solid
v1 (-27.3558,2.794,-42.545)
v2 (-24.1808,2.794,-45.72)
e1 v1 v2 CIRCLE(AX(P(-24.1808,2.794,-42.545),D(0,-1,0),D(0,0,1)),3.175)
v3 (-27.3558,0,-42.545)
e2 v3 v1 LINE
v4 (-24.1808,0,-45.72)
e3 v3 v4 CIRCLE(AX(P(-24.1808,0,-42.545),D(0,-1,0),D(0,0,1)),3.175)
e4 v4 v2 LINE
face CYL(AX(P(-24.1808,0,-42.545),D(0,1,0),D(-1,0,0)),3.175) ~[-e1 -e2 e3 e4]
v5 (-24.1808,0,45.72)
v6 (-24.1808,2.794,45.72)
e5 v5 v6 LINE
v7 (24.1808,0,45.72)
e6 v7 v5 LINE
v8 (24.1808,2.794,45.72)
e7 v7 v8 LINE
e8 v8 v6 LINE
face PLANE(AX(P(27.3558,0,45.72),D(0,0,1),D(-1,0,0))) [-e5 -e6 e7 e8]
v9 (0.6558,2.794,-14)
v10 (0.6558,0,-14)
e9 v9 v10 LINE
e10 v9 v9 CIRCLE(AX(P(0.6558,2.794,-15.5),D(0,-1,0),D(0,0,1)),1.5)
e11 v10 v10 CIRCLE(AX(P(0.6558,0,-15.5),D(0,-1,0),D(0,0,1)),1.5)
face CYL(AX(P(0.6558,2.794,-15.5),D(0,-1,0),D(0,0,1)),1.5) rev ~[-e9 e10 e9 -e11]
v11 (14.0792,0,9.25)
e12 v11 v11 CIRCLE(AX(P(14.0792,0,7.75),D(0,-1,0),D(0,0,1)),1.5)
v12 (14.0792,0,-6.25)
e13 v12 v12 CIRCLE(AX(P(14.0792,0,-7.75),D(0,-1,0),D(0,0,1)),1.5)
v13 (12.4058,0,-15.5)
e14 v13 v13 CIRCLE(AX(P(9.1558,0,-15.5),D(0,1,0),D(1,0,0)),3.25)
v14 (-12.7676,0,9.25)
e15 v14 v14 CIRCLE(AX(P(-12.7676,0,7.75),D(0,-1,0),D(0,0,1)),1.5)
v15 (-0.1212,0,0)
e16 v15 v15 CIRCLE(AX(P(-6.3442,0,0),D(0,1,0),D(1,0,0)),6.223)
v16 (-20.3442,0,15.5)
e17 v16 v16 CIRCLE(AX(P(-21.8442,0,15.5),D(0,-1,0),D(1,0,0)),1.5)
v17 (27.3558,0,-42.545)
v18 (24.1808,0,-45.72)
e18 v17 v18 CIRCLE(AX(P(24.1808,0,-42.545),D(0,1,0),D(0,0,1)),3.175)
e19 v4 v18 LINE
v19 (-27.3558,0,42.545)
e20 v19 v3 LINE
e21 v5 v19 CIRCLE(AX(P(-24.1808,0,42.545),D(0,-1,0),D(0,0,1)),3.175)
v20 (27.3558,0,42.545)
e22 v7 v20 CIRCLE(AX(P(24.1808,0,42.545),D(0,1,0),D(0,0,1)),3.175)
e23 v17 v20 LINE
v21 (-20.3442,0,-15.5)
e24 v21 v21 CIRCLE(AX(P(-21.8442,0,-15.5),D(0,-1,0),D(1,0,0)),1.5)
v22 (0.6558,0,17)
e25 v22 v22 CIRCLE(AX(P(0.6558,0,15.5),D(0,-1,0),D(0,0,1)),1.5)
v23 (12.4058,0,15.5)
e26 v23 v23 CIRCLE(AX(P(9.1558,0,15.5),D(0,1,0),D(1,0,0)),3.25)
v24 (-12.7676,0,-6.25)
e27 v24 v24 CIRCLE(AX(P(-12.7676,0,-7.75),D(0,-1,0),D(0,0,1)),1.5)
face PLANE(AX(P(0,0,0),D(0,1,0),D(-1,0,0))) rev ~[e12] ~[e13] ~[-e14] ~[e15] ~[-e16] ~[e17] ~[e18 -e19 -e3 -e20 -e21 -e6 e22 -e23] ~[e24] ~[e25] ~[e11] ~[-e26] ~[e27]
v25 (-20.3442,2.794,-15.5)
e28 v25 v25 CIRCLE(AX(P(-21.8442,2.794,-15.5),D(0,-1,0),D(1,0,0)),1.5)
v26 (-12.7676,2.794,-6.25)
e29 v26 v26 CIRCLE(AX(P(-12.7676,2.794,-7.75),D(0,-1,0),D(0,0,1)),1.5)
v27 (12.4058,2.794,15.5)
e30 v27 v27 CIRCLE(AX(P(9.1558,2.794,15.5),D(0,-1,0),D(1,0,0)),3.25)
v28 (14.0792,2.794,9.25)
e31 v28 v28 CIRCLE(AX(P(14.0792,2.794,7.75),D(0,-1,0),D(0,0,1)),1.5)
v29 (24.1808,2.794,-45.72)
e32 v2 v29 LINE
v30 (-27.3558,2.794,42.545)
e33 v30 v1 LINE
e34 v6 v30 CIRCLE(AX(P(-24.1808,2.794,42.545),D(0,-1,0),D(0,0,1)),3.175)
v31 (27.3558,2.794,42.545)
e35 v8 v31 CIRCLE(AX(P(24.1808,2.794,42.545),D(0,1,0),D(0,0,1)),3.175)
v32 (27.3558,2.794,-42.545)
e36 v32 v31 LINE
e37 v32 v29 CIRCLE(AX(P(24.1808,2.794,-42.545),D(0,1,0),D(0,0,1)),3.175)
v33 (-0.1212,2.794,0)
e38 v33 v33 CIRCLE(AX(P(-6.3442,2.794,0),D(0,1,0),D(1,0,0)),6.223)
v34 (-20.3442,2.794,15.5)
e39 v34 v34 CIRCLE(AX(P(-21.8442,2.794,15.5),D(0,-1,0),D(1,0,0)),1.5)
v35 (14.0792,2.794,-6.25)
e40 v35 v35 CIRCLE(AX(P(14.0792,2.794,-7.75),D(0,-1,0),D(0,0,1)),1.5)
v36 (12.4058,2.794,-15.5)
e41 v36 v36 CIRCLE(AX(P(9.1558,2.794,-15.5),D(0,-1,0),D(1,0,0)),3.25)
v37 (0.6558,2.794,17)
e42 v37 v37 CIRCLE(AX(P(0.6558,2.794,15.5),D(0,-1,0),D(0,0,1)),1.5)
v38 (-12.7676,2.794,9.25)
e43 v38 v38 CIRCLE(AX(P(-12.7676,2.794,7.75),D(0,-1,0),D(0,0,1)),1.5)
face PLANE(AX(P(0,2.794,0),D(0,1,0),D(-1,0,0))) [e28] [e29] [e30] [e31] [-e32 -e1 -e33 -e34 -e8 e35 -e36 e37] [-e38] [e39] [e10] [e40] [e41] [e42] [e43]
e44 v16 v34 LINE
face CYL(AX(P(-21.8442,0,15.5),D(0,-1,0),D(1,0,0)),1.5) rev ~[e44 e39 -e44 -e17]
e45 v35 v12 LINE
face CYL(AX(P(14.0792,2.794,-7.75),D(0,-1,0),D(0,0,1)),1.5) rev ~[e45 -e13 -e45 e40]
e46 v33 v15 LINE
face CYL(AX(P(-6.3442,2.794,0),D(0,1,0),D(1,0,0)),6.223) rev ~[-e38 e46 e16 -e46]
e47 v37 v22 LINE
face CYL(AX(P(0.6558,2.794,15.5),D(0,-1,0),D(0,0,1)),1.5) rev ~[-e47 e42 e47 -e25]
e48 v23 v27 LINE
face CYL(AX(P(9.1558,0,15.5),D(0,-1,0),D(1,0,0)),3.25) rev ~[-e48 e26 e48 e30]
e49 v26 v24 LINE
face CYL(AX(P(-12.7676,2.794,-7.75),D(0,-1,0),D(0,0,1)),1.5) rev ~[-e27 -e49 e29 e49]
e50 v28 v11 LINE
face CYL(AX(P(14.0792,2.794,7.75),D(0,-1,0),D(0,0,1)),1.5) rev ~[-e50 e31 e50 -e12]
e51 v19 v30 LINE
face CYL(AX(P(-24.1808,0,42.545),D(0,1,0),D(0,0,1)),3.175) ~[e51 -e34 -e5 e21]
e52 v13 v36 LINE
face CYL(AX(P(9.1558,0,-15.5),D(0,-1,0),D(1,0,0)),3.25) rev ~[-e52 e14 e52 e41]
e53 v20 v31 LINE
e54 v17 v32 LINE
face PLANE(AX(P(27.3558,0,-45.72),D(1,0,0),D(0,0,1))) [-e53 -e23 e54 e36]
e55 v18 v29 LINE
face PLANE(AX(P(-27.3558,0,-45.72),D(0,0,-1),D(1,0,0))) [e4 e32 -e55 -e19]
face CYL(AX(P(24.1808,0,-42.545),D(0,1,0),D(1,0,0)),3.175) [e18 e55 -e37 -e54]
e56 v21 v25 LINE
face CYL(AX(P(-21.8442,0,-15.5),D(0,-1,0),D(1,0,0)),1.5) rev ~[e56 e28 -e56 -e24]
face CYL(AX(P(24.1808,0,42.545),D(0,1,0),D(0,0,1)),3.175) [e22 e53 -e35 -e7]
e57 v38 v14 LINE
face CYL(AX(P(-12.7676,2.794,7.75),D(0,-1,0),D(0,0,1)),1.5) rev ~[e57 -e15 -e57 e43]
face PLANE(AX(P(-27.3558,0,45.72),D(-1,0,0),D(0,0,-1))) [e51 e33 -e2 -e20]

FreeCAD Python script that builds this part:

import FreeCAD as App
import Part
import Sketcher
from FreeCAD import Vector
Q = App.Units.Quantity


def edges_at(feature, points):
    """Names of the edges that pass closest to the given points."""
    edges = feature.Shape.Edges
    near = lambda p: min(range(len(edges)), key=lambda i: edges[i].distToShape(Part.Vertex(*p))[0])
    return sorted({f"Edge{near(p) + 1}" for p in points})

doc = App.newDocument("Part")
body = doc.addObject("PartDesign::Body", "Body")

sketch1 = body.newObject("Sketcher::SketchObject", "Sketch")
sketch1.AttachmentSupport = (doc.getObject("XZ_Plane"), [""])
sketch1.MapMode = "FlatFace"
sketch1.addGeometry(Part.LineSegment(Vector(-27, 46, 0), Vector(27, 46, 0)), False)
sketch1.addGeometry(Part.LineSegment(Vector(27, 46, 0), Vector(27, -46, 0)), False)
sketch1.addGeometry(Part.LineSegment(Vector(27, -46, 0), Vector(-27, -46, 0)), False)
sketch1.addGeometry(Part.LineSegment(Vector(-27, -46, 0), Vector(-27, 46, 0)), False)
sketch1.addConstraint(Sketcher.Constraint("Coincident", 0, 2, 1, 1))
sketch1.addConstraint(Sketcher.Constraint("Coincident", 1, 2, 2, 1))
sketch1.addConstraint(Sketcher.Constraint("Coincident", 2, 2, 3, 1))
sketch1.addConstraint(Sketcher.Constraint("Coincident", 3, 2, 0, 1))
sketch1.addConstraint(Sketcher.Constraint("Horizontal", 0))
sketch1.addConstraint(Sketcher.Constraint("Vertical", 1))
sketch1.addConstraint(Sketcher.Constraint("Horizontal", 2))
sketch1.addConstraint(Sketcher.Constraint("Vertical", 3))
sketch1.addConstraint(Sketcher.Constraint("Symmetric", 0, 2, 2, 2, -1, 1))
sketch1.addConstraint(Sketcher.Constraint("DistanceY", 1, 2, 1, 1, Q("3.6 in")))
sketch1.addConstraint(Sketcher.Constraint("DistanceX", 0, 1, 0, 2, Q("2.154 in")))
pad1 = body.newObject("PartDesign::Pad", "Pad")
pad1.Profile = sketch1
pad1.Length = Q("0.11 in")
pad1.Reversed = True

sketch2 = body.newObject("Sketcher::SketchObject", "Sketch001")
sketch2.AttachmentSupport = (doc.getObject("XZ_Plane"), [""])
sketch2.MapMode = "FlatFace"
sketch2.AttachmentOffset = App.Placement(Vector(0, 0, -0.11 * 25.4), App.Rotation())
sketch2.addGeometry(Part.Circle(Vector(0.7, -15.5, 0), Vector(0, 0, 1), 1.5), False)
sketch2.addGeometry(Part.Circle(Vector(0.7, 15.5, 0), Vector(0, 0, 1), 1.5), False)
sketch2.addGeometry(Part.Circle(Vector(14.1, -7.8, 0), Vector(0, 0, 1), 1.5), False)
sketch2.addGeometry(Part.Circle(Vector(14.1, 7.8, 0), Vector(0, 0, 1), 1.5), False)
sketch2.addGeometry(Part.Circle(Vector(-12.8, -7.8, 0), Vector(0, 0, 1), 1.5), False)
sketch2.addGeometry(Part.Circle(Vector(-12.8, 7.8, 0), Vector(0, 0, 1), 1.5), False)
sketch2.addConstraint(Sketcher.Constraint("Equal", 0, 1))
sketch2.addConstraint(Sketcher.Constraint("Equal", 1, 2))
sketch2.addConstraint(Sketcher.Constraint("Equal", 2, 3))
sketch2.addConstraint(Sketcher.Constraint("Equal", 3, 4))
sketch2.addConstraint(Sketcher.Constraint("Equal", 4, 5))
sketch2.addConstraint(Sketcher.Constraint("Symmetric", 0, 3, 1, 3, -1))
sketch2.addConstraint(Sketcher.Constraint("Symmetric", 2, 3, 3, 3, -1))
sketch2.addConstraint(Sketcher.Constraint("Symmetric", 4, 3, 5, 3, -1))
sketch2.addConstraint(Sketcher.Constraint("Horizontal", 2, 3, 4, 3))
sketch2.addConstraint(Sketcher.Constraint("Diameter", 0, Q("0.1181 in")))
sketch2.addConstraint(Sketcher.Constraint("DistanceX", -1, 1, 2, 3, Q("0.5543 in")))
sketch2.addConstraint(Sketcher.Constraint("DistanceX", -1, 1, 0, 3, Q("0.6558 mm")))
sketch2.addConstraint(Sketcher.Constraint("DistanceY", 0, 3, -1, 1, Q("15.5 mm")))
sketch2.addConstraint(Sketcher.Constraint("DistanceY", 2, 3, -1, 1, Q("7.75 mm")))
sketch2.addConstraint(Sketcher.Constraint("DistanceX", 4, 3, -1, 1, Q("12.7676 mm")))
doc.recompute()
hole = body.newObject("PartDesign::Hole", "Hole")
hole.Profile = sketch2
hole.ThreadType = "None"
hole.Diameter = Q("0.1181102 in")
hole.DepthType = "ThroughAll"
hole.Reversed = True

sketch3 = body.newObject("Sketcher::SketchObject", "Sketch002")
sketch3.AttachmentSupport = (doc.getObject("XZ_Plane"), [""])
sketch3.MapMode = "FlatFace"
sketch3.AttachmentOffset = App.Placement(Vector(0, 0, -0.11 * 25.4), App.Rotation())
sketch3.addGeometry(Part.Circle(Vector(-6, 0, 0), Vector(0, 0, 1), 6), False)
sketch3.addConstraint(Sketcher.Constraint("PointOnObject", 0, 3, -1))
sketch3.addConstraint(Sketcher.Constraint("Diameter", 0, Q("0.49 in")))
sketch3.addConstraint(Sketcher.Constraint("DistanceX", 0, 3, -1, 1, Q("6.3442 mm")))
pocket1 = body.newObject("PartDesign::Pocket", "Pocket")
pocket1.Profile = sketch3
pocket1.Length = Q("1 in")
pocket1.Reversed = True

sketch4 = body.newObject("Sketcher::SketchObject", "Sketch003")
sketch4.AttachmentSupport = (doc.getObject("XZ_Plane"), [""])
sketch4.MapMode = "FlatFace"
sketch4.addGeometry(Part.Circle(Vector(9.2, -15.5, 0), Vector(0, 0, 1), 3.2), False)
sketch4.addGeometry(Part.Circle(Vector(9.2, 15.5, 0), Vector(0, 0, 1), 3.2), False)
sketch4.addGeometry(Part.Circle(Vector(-21.8, -15.5, 0), Vector(0, 0, 1), 1.5), False)
sketch4.addGeometry(Part.Circle(Vector(-21.8, 15.5, 0), Vector(0, 0, 1), 1.5), False)
sketch4.addConstraint(Sketcher.Constraint("Equal", 0, 1))
sketch4.addConstraint(Sketcher.Constraint("Equal", 2, 3))
sketch4.addConstraint(Sketcher.Constraint("Symmetric", 0, 3, 1, 3, -1))
sketch4.addConstraint(Sketcher.Constraint("Symmetric", 2, 3, 3, 3, -1))
sketch4.addConstraint(Sketcher.Constraint("Horizontal", 0, 3, 2, 3))
sketch4.addConstraint(Sketcher.Constraint("Diameter", 0, Q("0.2559 in")))
sketch4.addConstraint(Sketcher.Constraint("Diameter", 2, Q("0.1181 in")))
sketch4.addConstraint(Sketcher.Constraint("DistanceX", 2, 3, -1, 1, Q("0.86 in")))
sketch4.addConstraint(Sketcher.Constraint("DistanceX", -1, 1, 0, 3, Q("9.1558 mm")))
sketch4.addConstraint(Sketcher.Constraint("DistanceY", 0, 3, -1, 1, Q("15.5 mm")))
pocket2 = body.newObject("PartDesign::Pocket", "Pocket001")
pocket2.Profile = sketch4
pocket2.Length = Q("1 in")
doc.recompute()

fillet = body.newObject("PartDesign::Fillet", "Fillet")
fillet.Base = (pocket2, edges_at(pocket2, [
    (-27.356, 1.397, -45.72),
    (-27.356, 1.397, 45.72),
    (27.356, 1.397, 45.72),
    (27.356, 1.397, -45.72),
]))
fillet.Radius = Q("0.125 in")

doc.recompute()
